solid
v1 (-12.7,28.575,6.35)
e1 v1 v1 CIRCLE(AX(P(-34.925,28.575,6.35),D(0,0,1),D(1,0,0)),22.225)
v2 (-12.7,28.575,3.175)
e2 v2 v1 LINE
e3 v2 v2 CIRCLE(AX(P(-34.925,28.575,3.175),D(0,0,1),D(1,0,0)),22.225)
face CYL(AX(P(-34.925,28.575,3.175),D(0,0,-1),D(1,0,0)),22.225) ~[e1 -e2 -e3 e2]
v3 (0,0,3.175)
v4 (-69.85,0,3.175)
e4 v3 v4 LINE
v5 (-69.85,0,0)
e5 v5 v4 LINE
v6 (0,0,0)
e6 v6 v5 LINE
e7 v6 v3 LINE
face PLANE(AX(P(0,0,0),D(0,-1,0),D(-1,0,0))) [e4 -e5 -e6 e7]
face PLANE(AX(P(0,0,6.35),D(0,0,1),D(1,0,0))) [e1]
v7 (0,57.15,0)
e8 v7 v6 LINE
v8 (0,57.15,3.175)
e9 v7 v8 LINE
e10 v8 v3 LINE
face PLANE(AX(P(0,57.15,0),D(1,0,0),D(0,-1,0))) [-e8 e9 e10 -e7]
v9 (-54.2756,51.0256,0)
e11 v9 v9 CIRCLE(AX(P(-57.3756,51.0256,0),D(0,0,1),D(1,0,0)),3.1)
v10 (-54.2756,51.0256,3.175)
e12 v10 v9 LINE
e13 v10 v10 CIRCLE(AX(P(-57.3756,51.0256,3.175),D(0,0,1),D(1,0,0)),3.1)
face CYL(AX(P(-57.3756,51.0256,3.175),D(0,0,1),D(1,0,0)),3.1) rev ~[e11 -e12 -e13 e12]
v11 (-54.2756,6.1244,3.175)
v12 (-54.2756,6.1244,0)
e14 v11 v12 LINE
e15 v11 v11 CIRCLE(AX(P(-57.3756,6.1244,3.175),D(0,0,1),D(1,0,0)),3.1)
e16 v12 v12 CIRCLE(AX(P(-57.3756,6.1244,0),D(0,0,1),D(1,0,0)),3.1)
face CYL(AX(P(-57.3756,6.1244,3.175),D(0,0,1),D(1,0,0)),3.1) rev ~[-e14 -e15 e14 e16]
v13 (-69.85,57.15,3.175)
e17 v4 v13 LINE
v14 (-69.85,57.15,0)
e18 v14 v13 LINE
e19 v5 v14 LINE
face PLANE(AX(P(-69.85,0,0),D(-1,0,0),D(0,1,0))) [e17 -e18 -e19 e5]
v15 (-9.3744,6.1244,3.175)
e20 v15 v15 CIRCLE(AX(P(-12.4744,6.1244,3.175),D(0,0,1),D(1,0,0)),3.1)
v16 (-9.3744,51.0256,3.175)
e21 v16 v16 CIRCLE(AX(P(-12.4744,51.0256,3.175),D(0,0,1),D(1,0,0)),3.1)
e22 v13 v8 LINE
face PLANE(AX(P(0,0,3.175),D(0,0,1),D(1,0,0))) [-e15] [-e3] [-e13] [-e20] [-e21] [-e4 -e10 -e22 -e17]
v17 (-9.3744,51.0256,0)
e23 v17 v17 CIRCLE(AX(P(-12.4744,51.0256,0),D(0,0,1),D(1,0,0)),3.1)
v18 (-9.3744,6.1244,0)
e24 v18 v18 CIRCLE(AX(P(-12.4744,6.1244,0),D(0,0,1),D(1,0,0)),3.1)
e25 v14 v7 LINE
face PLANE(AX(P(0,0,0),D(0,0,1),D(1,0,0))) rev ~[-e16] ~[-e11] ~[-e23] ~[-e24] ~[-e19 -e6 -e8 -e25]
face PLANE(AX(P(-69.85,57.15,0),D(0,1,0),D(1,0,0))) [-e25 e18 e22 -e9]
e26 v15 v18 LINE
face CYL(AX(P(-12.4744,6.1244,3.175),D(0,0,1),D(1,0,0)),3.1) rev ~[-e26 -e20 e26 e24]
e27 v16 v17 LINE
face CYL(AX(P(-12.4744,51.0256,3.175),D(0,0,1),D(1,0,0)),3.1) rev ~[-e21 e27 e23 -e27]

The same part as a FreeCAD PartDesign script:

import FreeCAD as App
import Part
import Sketcher
Q = App.Units.Quantity


def add_polygon(sketch, points):
    """Adds a closed chain of lines whose ends are joined by coincident constraints."""
    first, n = sketch.GeometryCount, len(points)
    for a, b in zip(points, points[1:] + points[:1]):
        sketch.addGeometry(Part.LineSegment(App.Vector(*a, 0), App.Vector(*b, 0)), False)
    for i in range(n):
        sketch.addConstraint(Sketcher.Constraint("Coincident", first + i, 2, first + (i + 1) % n, 1))

doc = App.newDocument("Part")
body = doc.addObject("PartDesign::Body", "Body")

sketch1 = doc.addObject("Sketcher::SketchObject", "Sketch")
body.addObject(sketch1)
sketch1.AttachmentSupport = (doc.XY_Plane, [""])
sketch1.MapMode = "FlatFace"
add_polygon(sketch1, [(-69.85, 0), (0, 0), (0, 57.15), (-69.85, 57.15)])
sketch1.addConstraint(Sketcher.Constraint("Horizontal", 0))
sketch1.addConstraint(Sketcher.Constraint("Vertical", 1))
sketch1.addConstraint(Sketcher.Constraint("Horizontal", 2))
sketch1.addConstraint(Sketcher.Constraint("Vertical", 3))
sketch1.addConstraint(Sketcher.Constraint("Coincident", 0, 2, -1, 1))
sketch1.addConstraint(Sketcher.Constraint("DistanceX", 0, 1, 0, 2, Q("2.75 in")))
sketch1.addConstraint(Sketcher.Constraint("DistanceY", 1, 1, 1, 2, Q("2.25 in")))
pad1 = doc.addObject("PartDesign::Pad", "Pad")
body.addObject(pad1)
pad1.Profile = sketch1
pad1.Length = Q("0.125 in")

sketch2 = doc.addObject("Sketcher::SketchObject", "Sketch001")
body.addObject(sketch2)
sketch2.AttachmentSupport = (doc.XY_Plane, [""])
sketch2.MapMode = "FlatFace"
sketch2.AttachmentOffset = App.Placement(App.Vector(0, 0, 0.125 * 25.4), App.Rotation())
sketch2.addGeometry(Part.Circle(App.Vector(-34.925, 28.575, 0), App.Vector(0, 0, 1), 22.225), False)
sketch2.addConstraint(Sketcher.Constraint("Diameter", 0, Q("1.75 in")))
sketch2.addConstraint(Sketcher.Constraint("DistanceX", 0, 3, -1, 1, Q("1.375 in")))
sketch2.addConstraint(Sketcher.Constraint("DistanceY", -1, 1, 0, 3, Q("1.125 in")))
pad2 = doc.addObject("PartDesign::Pad", "Pad001")
body.addObject(pad2)
pad2.Profile = sketch2
pad2.Length = Q("0.125 in")

sketch3 = doc.addObject("Sketcher::SketchObject", "Sketch002")
body.addObject(sketch3)
sketch3.AttachmentSupport = (doc.XY_Plane, [""])
sketch3.MapMode = "FlatFace"
sketch3.AttachmentOffset = App.Placement(App.Vector(0, 0, 0.125 * 25.4), App.Rotation())
sketch3.addGeometry(Part.Circle(App.Vector(-12.4744, 6.1244, 0), App.Vector(0, 0, 1), 3.1), False)
sketch3.addGeometry(Part.Circle(App.Vector(-12.4744, 51.0256, 0), App.Vector(0, 0, 1), 3.1), False)
sketch3.addGeometry(Part.Circle(App.Vector(-57.3756, 51.0256, 0), App.Vector(0, 0, 1), 3.1), False)
sketch3.addGeometry(Part.Circle(App.Vector(-57.3756, 6.1244, 0), App.Vector(0, 0, 1), 3.1), False)
sketch3.addConstraint(Sketcher.Constraint("Equal", 0, 1))
sketch3.addConstraint(Sketcher.Constraint("Equal", 1, 2))
sketch3.addConstraint(Sketcher.Constraint("Equal", 2, 3))
sketch3.addConstraint(Sketcher.Constraint("Horizontal", 1, 3, 2, 3))
sketch3.addConstraint(Sketcher.Constraint("Horizontal", 0, 3, 3, 3))
sketch3.addConstraint(Sketcher.Constraint("Vertical", 0, 3, 1, 3))
sketch3.addConstraint(Sketcher.Constraint("Vertical", 2, 3, 3, 3))
sketch3.addConstraint(Sketcher.Constraint("Diameter", 0, Q("0.2441 in")))
sketch3.addConstraint(Sketcher.Constraint("DistanceX", 0, 3, -1, 1, Q("12.4744 mm")))
sketch3.addConstraint(Sketcher.Constraint("DistanceY", -1, 1, 0, 3, Q("6.1244 mm")))
sketch3.addConstraint(Sketcher.Constraint("DistanceY", -1, 1, 1, 3, Q("51.0256 mm")))
sketch3.addConstraint(Sketcher.Constraint("DistanceX", 2, 3, -1, 1, Q("57.3756 mm")))
pocket1 = doc.addObject("PartDesign::Pocket", "Pocket")
body.addObject(pocket1)
pocket1.Profile = sketch3
pocket1.Length = Q("0.125 in")

doc.recompute()
